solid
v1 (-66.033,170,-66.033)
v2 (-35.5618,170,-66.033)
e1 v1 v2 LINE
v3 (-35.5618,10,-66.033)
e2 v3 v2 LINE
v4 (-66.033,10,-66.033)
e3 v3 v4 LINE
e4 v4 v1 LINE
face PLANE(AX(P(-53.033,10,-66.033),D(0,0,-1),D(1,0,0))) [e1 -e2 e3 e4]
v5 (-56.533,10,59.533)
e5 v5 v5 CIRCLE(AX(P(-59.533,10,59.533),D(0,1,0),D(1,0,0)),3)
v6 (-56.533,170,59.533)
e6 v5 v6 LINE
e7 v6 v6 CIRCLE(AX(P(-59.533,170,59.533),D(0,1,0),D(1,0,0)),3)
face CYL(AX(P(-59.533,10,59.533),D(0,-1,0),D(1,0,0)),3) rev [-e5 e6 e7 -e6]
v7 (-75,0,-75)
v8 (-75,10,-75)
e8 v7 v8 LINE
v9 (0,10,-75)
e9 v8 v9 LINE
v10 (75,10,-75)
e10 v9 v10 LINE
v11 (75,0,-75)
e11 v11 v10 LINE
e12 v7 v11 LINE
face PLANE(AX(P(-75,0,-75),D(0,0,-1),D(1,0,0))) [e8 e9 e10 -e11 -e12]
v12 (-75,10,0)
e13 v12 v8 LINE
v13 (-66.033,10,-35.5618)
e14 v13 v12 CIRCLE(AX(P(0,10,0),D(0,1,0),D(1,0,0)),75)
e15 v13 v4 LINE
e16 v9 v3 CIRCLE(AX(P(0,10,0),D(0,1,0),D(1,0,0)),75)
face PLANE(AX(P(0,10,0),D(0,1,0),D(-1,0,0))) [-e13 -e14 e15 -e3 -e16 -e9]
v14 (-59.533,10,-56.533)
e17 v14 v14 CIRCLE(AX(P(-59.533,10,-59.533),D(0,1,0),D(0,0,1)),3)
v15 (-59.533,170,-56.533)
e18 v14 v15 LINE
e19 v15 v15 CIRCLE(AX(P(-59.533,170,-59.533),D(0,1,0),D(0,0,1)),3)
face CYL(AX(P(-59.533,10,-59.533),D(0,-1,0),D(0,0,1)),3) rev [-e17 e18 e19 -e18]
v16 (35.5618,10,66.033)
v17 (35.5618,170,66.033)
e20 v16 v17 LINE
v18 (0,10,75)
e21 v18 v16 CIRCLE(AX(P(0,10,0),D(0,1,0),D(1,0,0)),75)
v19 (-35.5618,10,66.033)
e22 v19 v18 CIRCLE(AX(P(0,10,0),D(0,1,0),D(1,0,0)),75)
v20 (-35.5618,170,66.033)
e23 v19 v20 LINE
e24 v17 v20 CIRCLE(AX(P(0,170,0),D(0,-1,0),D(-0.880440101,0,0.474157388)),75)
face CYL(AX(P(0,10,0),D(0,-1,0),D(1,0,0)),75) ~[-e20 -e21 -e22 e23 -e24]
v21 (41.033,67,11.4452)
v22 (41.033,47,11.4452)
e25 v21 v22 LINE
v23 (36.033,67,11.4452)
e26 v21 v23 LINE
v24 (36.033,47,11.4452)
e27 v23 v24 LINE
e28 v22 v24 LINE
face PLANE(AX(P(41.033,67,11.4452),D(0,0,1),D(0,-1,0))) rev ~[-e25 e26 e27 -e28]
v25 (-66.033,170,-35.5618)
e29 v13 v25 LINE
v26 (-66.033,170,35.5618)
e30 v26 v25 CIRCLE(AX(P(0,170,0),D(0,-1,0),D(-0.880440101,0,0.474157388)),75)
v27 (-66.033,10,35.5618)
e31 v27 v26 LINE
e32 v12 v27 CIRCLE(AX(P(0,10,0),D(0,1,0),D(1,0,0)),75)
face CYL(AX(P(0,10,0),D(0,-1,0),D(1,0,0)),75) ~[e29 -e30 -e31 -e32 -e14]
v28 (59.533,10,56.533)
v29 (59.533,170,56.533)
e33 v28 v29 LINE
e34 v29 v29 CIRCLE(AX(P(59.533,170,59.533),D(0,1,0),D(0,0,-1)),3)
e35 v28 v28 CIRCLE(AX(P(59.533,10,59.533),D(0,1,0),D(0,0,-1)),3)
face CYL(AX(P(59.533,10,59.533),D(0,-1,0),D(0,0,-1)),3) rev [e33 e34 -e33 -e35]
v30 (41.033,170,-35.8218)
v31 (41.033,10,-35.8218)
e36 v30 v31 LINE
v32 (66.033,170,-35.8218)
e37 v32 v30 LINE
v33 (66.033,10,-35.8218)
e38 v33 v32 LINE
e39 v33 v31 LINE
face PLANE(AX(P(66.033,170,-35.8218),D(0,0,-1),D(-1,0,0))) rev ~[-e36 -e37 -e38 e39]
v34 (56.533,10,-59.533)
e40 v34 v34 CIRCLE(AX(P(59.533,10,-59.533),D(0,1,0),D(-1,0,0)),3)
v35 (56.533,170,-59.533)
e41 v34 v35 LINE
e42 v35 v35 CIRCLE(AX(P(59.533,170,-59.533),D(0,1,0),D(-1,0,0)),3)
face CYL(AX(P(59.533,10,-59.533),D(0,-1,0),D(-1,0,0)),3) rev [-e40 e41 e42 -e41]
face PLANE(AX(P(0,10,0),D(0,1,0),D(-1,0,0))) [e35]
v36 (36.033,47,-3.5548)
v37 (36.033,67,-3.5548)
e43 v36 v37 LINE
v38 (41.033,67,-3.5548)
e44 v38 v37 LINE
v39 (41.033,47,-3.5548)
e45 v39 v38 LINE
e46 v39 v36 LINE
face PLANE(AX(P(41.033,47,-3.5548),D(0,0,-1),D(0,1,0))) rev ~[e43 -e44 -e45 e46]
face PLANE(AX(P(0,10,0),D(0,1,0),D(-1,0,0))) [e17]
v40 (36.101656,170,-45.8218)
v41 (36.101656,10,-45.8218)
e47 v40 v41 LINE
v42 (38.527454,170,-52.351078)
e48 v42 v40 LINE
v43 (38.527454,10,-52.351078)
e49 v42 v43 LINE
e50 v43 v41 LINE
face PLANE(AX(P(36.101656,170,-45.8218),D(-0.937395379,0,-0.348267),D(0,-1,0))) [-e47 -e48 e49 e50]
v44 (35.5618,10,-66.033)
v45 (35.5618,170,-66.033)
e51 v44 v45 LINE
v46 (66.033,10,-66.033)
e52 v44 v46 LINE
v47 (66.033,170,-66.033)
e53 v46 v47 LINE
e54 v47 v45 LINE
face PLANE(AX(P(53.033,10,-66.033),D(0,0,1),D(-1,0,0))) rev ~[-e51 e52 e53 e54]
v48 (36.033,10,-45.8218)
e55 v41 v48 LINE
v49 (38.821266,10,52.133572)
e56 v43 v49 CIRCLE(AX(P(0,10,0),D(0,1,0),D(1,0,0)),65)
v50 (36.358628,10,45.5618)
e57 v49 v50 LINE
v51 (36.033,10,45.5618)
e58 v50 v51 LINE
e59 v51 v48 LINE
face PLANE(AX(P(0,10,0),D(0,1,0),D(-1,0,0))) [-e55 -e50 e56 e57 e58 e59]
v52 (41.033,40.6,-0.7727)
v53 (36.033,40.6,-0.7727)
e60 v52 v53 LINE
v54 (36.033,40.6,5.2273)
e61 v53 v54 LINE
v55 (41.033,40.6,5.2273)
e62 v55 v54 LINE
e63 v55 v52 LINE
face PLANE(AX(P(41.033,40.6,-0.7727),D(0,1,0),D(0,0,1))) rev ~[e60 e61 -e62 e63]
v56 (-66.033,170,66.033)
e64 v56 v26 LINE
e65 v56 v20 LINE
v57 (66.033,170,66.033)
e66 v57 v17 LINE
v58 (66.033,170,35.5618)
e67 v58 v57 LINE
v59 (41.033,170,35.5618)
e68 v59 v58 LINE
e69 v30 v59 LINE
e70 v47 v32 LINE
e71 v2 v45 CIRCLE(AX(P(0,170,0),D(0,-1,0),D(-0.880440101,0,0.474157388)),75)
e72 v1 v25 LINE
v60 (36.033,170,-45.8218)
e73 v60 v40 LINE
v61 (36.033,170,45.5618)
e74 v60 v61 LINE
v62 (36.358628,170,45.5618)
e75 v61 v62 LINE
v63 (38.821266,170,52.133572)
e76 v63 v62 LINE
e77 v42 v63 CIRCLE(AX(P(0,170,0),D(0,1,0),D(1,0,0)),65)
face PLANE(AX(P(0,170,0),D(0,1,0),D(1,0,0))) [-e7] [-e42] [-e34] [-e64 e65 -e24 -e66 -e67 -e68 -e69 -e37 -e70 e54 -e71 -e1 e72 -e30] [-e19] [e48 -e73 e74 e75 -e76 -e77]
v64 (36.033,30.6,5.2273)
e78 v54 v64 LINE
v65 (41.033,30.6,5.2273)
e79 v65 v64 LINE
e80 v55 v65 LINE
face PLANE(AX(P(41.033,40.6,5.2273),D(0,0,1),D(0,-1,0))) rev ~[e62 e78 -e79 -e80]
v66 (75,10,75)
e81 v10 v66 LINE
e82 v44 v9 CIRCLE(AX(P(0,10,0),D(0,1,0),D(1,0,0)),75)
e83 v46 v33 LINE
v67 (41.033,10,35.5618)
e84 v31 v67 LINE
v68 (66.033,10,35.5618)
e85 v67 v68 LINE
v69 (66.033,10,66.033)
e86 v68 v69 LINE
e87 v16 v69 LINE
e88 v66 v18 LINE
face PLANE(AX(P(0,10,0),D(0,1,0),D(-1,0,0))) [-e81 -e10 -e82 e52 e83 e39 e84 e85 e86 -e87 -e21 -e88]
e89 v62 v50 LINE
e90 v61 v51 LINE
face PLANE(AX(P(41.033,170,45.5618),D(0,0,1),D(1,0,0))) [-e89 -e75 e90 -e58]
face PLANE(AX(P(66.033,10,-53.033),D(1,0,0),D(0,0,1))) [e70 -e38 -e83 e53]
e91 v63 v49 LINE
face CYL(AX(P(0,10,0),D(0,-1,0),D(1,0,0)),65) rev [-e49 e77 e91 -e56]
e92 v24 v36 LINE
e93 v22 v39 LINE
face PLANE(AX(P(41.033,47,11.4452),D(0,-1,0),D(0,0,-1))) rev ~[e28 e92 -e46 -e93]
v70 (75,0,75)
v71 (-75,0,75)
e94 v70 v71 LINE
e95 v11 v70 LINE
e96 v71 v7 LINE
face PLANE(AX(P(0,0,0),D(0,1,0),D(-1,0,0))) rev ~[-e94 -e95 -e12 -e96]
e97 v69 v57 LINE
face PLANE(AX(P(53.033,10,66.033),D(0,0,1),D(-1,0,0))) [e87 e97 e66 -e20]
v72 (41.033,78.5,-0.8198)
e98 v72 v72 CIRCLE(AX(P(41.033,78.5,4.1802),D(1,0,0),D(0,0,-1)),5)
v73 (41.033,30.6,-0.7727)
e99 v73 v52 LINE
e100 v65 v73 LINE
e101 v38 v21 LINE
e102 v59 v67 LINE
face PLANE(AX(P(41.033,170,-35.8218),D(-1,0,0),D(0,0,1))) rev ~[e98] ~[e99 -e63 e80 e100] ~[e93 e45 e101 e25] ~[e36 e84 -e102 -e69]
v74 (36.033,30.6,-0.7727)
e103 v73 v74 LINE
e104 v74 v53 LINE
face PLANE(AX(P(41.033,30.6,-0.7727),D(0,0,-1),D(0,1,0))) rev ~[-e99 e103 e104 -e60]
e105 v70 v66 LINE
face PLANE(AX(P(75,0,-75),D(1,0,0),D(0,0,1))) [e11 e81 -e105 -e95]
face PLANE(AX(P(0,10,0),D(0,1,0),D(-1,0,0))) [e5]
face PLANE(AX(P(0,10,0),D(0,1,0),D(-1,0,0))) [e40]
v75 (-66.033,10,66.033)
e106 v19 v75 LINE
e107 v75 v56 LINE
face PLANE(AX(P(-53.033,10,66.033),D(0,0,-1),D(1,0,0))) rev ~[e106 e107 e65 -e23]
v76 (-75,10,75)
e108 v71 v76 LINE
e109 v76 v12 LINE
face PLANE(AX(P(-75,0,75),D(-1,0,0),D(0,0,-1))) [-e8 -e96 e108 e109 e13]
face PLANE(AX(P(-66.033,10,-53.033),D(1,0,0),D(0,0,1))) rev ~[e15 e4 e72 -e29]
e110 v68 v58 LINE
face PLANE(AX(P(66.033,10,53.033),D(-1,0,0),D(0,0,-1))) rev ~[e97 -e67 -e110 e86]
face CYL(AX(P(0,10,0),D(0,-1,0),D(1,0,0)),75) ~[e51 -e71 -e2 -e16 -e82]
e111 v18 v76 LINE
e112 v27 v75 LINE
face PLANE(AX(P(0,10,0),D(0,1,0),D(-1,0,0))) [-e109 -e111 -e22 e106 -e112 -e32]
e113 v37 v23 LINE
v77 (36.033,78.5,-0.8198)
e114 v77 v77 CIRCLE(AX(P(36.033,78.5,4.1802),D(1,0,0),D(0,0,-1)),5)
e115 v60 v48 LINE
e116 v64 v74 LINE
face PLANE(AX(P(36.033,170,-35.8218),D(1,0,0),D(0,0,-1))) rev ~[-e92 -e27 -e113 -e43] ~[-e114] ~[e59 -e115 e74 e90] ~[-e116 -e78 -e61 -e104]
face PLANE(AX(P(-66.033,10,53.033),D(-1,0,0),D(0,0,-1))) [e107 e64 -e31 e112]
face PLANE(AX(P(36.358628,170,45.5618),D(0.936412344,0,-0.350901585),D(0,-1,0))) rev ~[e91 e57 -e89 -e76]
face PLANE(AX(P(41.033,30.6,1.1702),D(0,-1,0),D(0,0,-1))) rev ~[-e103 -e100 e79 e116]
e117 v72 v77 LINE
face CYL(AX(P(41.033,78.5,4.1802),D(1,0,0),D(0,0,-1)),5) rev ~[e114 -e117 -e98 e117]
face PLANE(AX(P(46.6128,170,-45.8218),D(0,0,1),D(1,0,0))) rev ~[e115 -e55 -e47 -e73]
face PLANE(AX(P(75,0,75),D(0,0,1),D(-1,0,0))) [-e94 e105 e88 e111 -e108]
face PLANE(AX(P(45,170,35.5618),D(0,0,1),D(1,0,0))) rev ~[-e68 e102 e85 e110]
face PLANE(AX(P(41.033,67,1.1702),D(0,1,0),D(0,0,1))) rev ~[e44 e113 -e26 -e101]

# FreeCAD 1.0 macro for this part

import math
import FreeCAD as App
import Part
import Sketcher


def edges_at(feature, points):
    """Names of the edges that pass closest to the given points."""
    edges = feature.Shape.Edges
    near = lambda p: min(range(len(edges)), key=lambda i: edges[i].distToShape(Part.Vertex(*p))[0])
    return sorted({f"Edge{near(p) + 1}" for p in points})

doc = App.newDocument("Part")
body = doc.addObject("PartDesign::Body", "Body")

sketch1 = body.newObject("Sketcher::SketchObject", "Sketch")
sketch1.AttachmentSupport = (doc.getObject("XZ_Plane"), [""])
sketch1.MapMode = "FlatFace"
sketch1.addGeometry(Part.LineSegment(App.Vector(-75, 75, 0), App.Vector(75, 75, 0)), False)
sketch1.addGeometry(Part.LineSegment(App.Vector(75, 75, 0), App.Vector(75, -75, 0)), False)
sketch1.addGeometry(Part.LineSegment(App.Vector(75, -75, 0), App.Vector(-75, -75, 0)), False)
sketch1.addGeometry(Part.LineSegment(App.Vector(-75, -75, 0), App.Vector(-75, 75, 0)), False)
sketch1.addConstraint(Sketcher.Constraint("Coincident", 0, 2, 1, 1))
sketch1.addConstraint(Sketcher.Constraint("Coincident", 1, 2, 2, 1))
sketch1.addConstraint(Sketcher.Constraint("Coincident", 2, 2, 3, 1))
sketch1.addConstraint(Sketcher.Constraint("Coincident", 3, 2, 0, 1))
sketch1.addConstraint(Sketcher.Constraint("Horizontal", 0))
sketch1.addConstraint(Sketcher.Constraint("Vertical", 1))
sketch1.addConstraint(Sketcher.Constraint("Horizontal", 2))
sketch1.addConstraint(Sketcher.Constraint("Vertical", 3))
sketch1.addConstraint(Sketcher.Constraint("Symmetric", 0, 2, 2, 2, -1, 1))
sketch1.addConstraint(Sketcher.Constraint("Equal", 2, 1))
sketch1.addConstraint(Sketcher.Constraint("DistanceX", 0, 1, 0, 2, 150.0))
pad1 = body.newObject("PartDesign::Pad", "Pad")
pad1.Profile = sketch1
pad1.Length = 10
pad1.Reversed = True

sketch2 = body.newObject("Sketcher::SketchObject", "Sketch001")
sketch2.AttachmentSupport = (doc.getObject("XZ_Plane"), [""])
sketch2.MapMode = "FlatFace"
sketch2.AttachmentOffset = App.Placement(App.Vector(0, 0, -10), App.Rotation())
sketch2.addGeometry(Part.Circle(App.Vector(0, 0, 0), App.Vector(0, 0, 1), 75), False)
sketch2.addGeometry(Part.Circle(App.Vector(0, 0, 0), App.Vector(0, 0, 1), 65), False)
sketch2.addConstraint(Sketcher.Constraint("Coincident", 0, 3, -1, 1))
sketch2.addConstraint(Sketcher.Constraint("Coincident", 1, 3, -1, 1))
sketch2.addConstraint(Sketcher.Constraint("Diameter", 0, 150.0))
sketch2.addConstraint(Sketcher.Constraint("Diameter", 1, 130.0))
pad2 = body.newObject("PartDesign::Pad", "Pad001")
pad2.Profile = sketch2
pad2.Length = 160
pad2.Reversed = True

sketch3 = body.newObject("Sketcher::SketchObject", "Sketch002")
sketch3.AttachmentSupport = (doc.getObject("XZ_Plane"), [""])
sketch3.MapMode = "FlatFace"
sketch3.AttachmentOffset = App.Placement(App.Vector(0, 0, -10), App.Rotation())
sketch3.addGeometry(Part.LineSegment(App.Vector(-66, 35.6, 0), App.Vector(-66, 66, 0)), False)
sketch3.addGeometry(Part.LineSegment(App.Vector(-66, 66, 0), App.Vector(-35.6, 66, 0)), False)
sketch3.addGeometry(Part.ArcOfCircle(Part.Circle(App.Vector(0, 0, 0), App.Vector(0, 0, 1), 75), math.radians(118), math.radians(152)), False)
sketch3.addGeometry(Part.Circle(App.Vector(-59.5, 59.5, 0), App.Vector(0, 0, 1), 3), False)
sketch3.addConstraint(Sketcher.Constraint("Coincident", 0, 2, 1, 1))
sketch3.addConstraint(Sketcher.Constraint("Coincident", 1, 2, 2, 1))
sketch3.addConstraint(Sketcher.Constraint("Coincident", 2, 2, 0, 1))
sketch3.addConstraint(Sketcher.Constraint("Vertical", 0))
sketch3.addConstraint(Sketcher.Constraint("Horizontal", 1))
sketch3.addConstraint(Sketcher.Constraint("Coincident", 2, 3, -1, 1))
sketch3.addConstraint(Sketcher.Constraint("Equal", 1, 0))
sketch3.addConstraint(Sketcher.Constraint("Diameter", 3, 6.0))
sketch3.addConstraint(Sketcher.Constraint("Radius", 2, 75.0))
sketch3.addConstraint(Sketcher.Constraint("DistanceX", 0, 2, 3, 3, 6.5))
sketch3.addConstraint(Sketcher.Constraint("DistanceY", 3, 3, 0, 2, 6.5))
sketch3.addConstraint(Sketcher.Constraint("DistanceX", 1, 1, 1, 2, 30.4712))
pad3 = body.newObject("PartDesign::Pad", "Pad002")
pad3.Profile = sketch3
pad3.Length = 160
pad3.Reversed = True
doc.recompute()

polarpattern = body.newObject("PartDesign::PolarPattern", "PolarPattern")
polarpattern.Originals = [pad3]
polarpattern.Axis = (doc.getObject("Y_Axis"), [""])
polarpattern.Angle = 360
polarpattern.Occurrences = 4
body.Tip = polarpattern

sketch4 = body.newObject("Sketcher::SketchObject", "Sketch003")
sketch4.AttachmentSupport = (doc.getObject("XZ_Plane"), [""])
sketch4.MapMode = "FlatFace"
sketch4.AttachmentOffset = App.Placement(App.Vector(0, 0, -170), App.Rotation())
sketch4.addGeometry(Part.LineSegment(App.Vector(75, 36, 0), App.Vector(75, -36, 0)), False)
sketch4.addGeometry(Part.LineSegment(App.Vector(75, -36, 0), App.Vector(45, -36, 0)), False)
sketch4.addGeometry(Part.LineSegment(App.Vector(45, -36, 0), App.Vector(45, 36, 0)), False)
sketch4.addGeometry(Part.LineSegment(App.Vector(45, 36, 0), App.Vector(75, 36, 0)), False)
sketch4.addConstraint(Sketcher.Constraint("Coincident", 0, 2, 1, 1))
sketch4.addConstraint(Sketcher.Constraint("Coincident", 1, 2, 2, 1))
sketch4.addConstraint(Sketcher.Constraint("Coincident", 2, 2, 3, 1))
sketch4.addConstraint(Sketcher.Constraint("Coincident", 3, 2, 0, 1))
sketch4.addConstraint(Sketcher.Constraint("Vertical", 0))
sketch4.addConstraint(Sketcher.Constraint("Horizontal", 1))
sketch4.addConstraint(Sketcher.Constraint("Vertical", 2))
sketch4.addConstraint(Sketcher.Constraint("Horizontal", 3))
sketch4.addConstraint(Sketcher.Constraint("DistanceX", 1, 2, 1, 1, 30.0))
sketch4.addConstraint(Sketcher.Constraint("DistanceX", -1, 1, 0, 2, 75.0))
sketch4.addConstraint(Sketcher.Constraint("DistanceY", 0, 2, 0, 1, 71.3836))
sketch4.addConstraint(Sketcher.Constraint("DistanceY", 0, 2, -1, 1, 35.8218))
pocket1 = body.newObject("PartDesign::Pocket", "Pocket")
pocket1.Profile = sketch4
pocket1.Length = 160
pocket1.Reversed = True

sketch5 = body.newObject("Sketcher::SketchObject", "Sketch004")
sketch5.AttachmentSupport = (doc.getObject("XZ_Plane"), [""])
sketch5.MapMode = "FlatFace"
sketch5.AttachmentOffset = App.Placement(App.Vector(0, 0, -170), App.Rotation())
sketch5.addGeometry(Part.LineSegment(App.Vector(66, -36, 0), App.Vector(66, -46, 0)), False)
sketch5.addGeometry(Part.LineSegment(App.Vector(66, -46, 0), App.Vector(36, -46, 0)), False)
sketch5.addGeometry(Part.LineSegment(App.Vector(36, -46, 0), App.Vector(36, 46, 0)), False)
sketch5.addGeometry(Part.LineSegment(App.Vector(36, 46, 0), App.Vector(66, 46, 0)), False)
sketch5.addGeometry(Part.LineSegment(App.Vector(66, 46, 0), App.Vector(66, 36, 0)), False)
sketch5.addGeometry(Part.LineSegment(App.Vector(66, 36, 0), App.Vector(41, 36, 0)), False)
sketch5.addGeometry(Part.LineSegment(App.Vector(41, 36, 0), App.Vector(41, -36, 0)), False)
sketch5.addGeometry(Part.LineSegment(App.Vector(41, -36, 0), App.Vector(66, -36, 0)), False)
sketch5.addConstraint(Sketcher.Constraint("Coincident", 0, 2, 1, 1))
sketch5.addConstraint(Sketcher.Constraint("Coincident", 1, 2, 2, 1))
sketch5.addConstraint(Sketcher.Constraint("Coincident", 2, 2, 3, 1))
sketch5.addConstraint(Sketcher.Constraint("Coincident", 3, 2, 4, 1))
sketch5.addConstraint(Sketcher.Constraint("Coincident", 4, 2, 5, 1))
sketch5.addConstraint(Sketcher.Constraint("Coincident", 5, 2, 6, 1))
sketch5.addConstraint(Sketcher.Constraint("Coincident", 6, 2, 7, 1))
sketch5.addConstraint(Sketcher.Constraint("Coincident", 7, 2, 0, 1))
sketch5.addConstraint(Sketcher.Constraint("Vertical", 0))
sketch5.addConstraint(Sketcher.Constraint("Horizontal", 1))
sketch5.addConstraint(Sketcher.Constraint("Vertical", 2))
sketch5.addConstraint(Sketcher.Constraint("Horizontal", 3))
sketch5.addConstraint(Sketcher.Constraint("Vertical", 4))
sketch5.addConstraint(Sketcher.Constraint("Horizontal", 5))
sketch5.addConstraint(Sketcher.Constraint("Vertical", 6))
sketch5.addConstraint(Sketcher.Constraint("Horizontal", 7))
sketch5.addConstraint(Sketcher.Constraint("Vertical", 0, 2, 3, 2))
sketch5.addConstraint(Sketcher.Constraint("Equal", 0, 4))
sketch5.addConstraint(Sketcher.Constraint("DistanceX", 1, 2, 1, 1, 30.0))
sketch5.addConstraint(Sketcher.Constraint("DistanceY", 0, 2, 0, 1, 10.0))
sketch5.addConstraint(Sketcher.Constraint("DistanceX", 2, 2, 5, 2, 5.0))
sketch5.addConstraint(Sketcher.Constraint("DistanceY", 2, 1, 2, 2, 91.3836))
sketch5.addConstraint(Sketcher.Constraint("DistanceX", -1, 1, 0, 2, 66.033))
sketch5.addConstraint(Sketcher.Constraint("DistanceY", 0, 2, -1, 1, 45.8218))
pad4 = body.newObject("PartDesign::Pad", "Pad003")
pad4.Profile = sketch5
pad4.Length = 160

sketch6 = body.newObject("Sketcher::SketchObject", "Sketch005")
sketch6.AttachmentSupport = (doc.getObject("YZ_Plane"), [""])
sketch6.MapMode = "FlatFace"
sketch6.AttachmentOffset = App.Placement(App.Vector(0, 0, 41.033), App.Rotation())
sketch6.addGeometry(Part.Circle(App.Vector(78, 4, 0), App.Vector(0, 0, 1), 5), False)
sketch6.addGeometry(Part.LineSegment(App.Vector(47, 11, 0), App.Vector(47, -4, 0)), False)
sketch6.addGeometry(Part.LineSegment(App.Vector(47, -4, 0), App.Vector(67, -4, 0)), False)
sketch6.addGeometry(Part.LineSegment(App.Vector(67, -4, 0), App.Vector(67, 11, 0)), False)
sketch6.addGeometry(Part.LineSegment(App.Vector(67, 11, 0), App.Vector(47, 11, 0)), False)
sketch6.addGeometry(Part.LineSegment(App.Vector(41, -1, 0), App.Vector(41, 5, 0)), False)
sketch6.addGeometry(Part.LineSegment(App.Vector(41, 5, 0), App.Vector(31, 5, 0)), False)
sketch6.addGeometry(Part.LineSegment(App.Vector(31, 5, 0), App.Vector(31, -1, 0)), False)
sketch6.addGeometry(Part.LineSegment(App.Vector(31, -1, 0), App.Vector(41, -1, 0)), False)
sketch6.addConstraint(Sketcher.Constraint("Coincident", 1, 2, 2, 1))
sketch6.addConstraint(Sketcher.Constraint("Coincident", 2, 2, 3, 1))
sketch6.addConstraint(Sketcher.Constraint("Coincident", 3, 2, 4, 1))
sketch6.addConstraint(Sketcher.Constraint("Coincident", 4, 2, 1, 1))
sketch6.addConstraint(Sketcher.Constraint("Coincident", 5, 2, 6, 1))
sketch6.addConstraint(Sketcher.Constraint("Coincident", 6, 2, 7, 1))
sketch6.addConstraint(Sketcher.Constraint("Coincident", 7, 2, 8, 1))
sketch6.addConstraint(Sketcher.Constraint("Coincident", 8, 2, 5, 1))
sketch6.addConstraint(Sketcher.Constraint("Vertical", 1))
sketch6.addConstraint(Sketcher.Constraint("Horizontal", 2))
sketch6.addConstraint(Sketcher.Constraint("Vertical", 3))
sketch6.addConstraint(Sketcher.Constraint("Horizontal", 4))
sketch6.addConstraint(Sketcher.Constraint("Vertical", 5))
sketch6.addConstraint(Sketcher.Constraint("Horizontal", 6))
sketch6.addConstraint(Sketcher.Constraint("Vertical", 7))
sketch6.addConstraint(Sketcher.Constraint("Horizontal", 8))
sketch6.addConstraint(Sketcher.Constraint("Diameter", 0, 10.0))
sketch6.addConstraint(Sketcher.Constraint("DistanceX", 2, 1, 2, 2, 20.0))
sketch6.addConstraint(Sketcher.Constraint("DistanceX", 6, 2, 6, 1, 10.0))
sketch6.addConstraint(Sketcher.Constraint("DistanceY", 1, 2, 1, 1, 15.0))
sketch6.addConstraint(Sketcher.Constraint("DistanceY", 5, 1, 5, 2, 6.0))
sketch6.addConstraint(Sketcher.Constraint("DistanceX", -1, 1, 1, 2, 47.0))
sketch6.addConstraint(Sketcher.Constraint("DistanceX", -1, 1, 0, 3, 78.5))
sketch6.addConstraint(Sketcher.Constraint("DistanceX", -1, 1, 5, 2, 40.6))
sketch6.addConstraint(Sketcher.Constraint("DistanceY", 1, 2, 0, 3, 7.735))
sketch6.addConstraint(Sketcher.Constraint("DistanceY", 5, 2, 4, 2, 6.218))
sketch6.addConstraint(Sketcher.Constraint("DistanceY", -1, 1, 0, 3, 4.1802))
pocket2 = body.newObject("PartDesign::Pocket", "Pocket001")
pocket2.Profile = sketch6
pocket2.Length = 10
doc.recompute()

chamfer = body.newObject("PartDesign::Chamfer", "Chamfer")
chamfer.Base = (pocket2, edges_at(pocket2, [(46.359, 90, 45.562), (46.102, 90, -45.822)]))
chamfer.Size = 10

doc.recompute()
